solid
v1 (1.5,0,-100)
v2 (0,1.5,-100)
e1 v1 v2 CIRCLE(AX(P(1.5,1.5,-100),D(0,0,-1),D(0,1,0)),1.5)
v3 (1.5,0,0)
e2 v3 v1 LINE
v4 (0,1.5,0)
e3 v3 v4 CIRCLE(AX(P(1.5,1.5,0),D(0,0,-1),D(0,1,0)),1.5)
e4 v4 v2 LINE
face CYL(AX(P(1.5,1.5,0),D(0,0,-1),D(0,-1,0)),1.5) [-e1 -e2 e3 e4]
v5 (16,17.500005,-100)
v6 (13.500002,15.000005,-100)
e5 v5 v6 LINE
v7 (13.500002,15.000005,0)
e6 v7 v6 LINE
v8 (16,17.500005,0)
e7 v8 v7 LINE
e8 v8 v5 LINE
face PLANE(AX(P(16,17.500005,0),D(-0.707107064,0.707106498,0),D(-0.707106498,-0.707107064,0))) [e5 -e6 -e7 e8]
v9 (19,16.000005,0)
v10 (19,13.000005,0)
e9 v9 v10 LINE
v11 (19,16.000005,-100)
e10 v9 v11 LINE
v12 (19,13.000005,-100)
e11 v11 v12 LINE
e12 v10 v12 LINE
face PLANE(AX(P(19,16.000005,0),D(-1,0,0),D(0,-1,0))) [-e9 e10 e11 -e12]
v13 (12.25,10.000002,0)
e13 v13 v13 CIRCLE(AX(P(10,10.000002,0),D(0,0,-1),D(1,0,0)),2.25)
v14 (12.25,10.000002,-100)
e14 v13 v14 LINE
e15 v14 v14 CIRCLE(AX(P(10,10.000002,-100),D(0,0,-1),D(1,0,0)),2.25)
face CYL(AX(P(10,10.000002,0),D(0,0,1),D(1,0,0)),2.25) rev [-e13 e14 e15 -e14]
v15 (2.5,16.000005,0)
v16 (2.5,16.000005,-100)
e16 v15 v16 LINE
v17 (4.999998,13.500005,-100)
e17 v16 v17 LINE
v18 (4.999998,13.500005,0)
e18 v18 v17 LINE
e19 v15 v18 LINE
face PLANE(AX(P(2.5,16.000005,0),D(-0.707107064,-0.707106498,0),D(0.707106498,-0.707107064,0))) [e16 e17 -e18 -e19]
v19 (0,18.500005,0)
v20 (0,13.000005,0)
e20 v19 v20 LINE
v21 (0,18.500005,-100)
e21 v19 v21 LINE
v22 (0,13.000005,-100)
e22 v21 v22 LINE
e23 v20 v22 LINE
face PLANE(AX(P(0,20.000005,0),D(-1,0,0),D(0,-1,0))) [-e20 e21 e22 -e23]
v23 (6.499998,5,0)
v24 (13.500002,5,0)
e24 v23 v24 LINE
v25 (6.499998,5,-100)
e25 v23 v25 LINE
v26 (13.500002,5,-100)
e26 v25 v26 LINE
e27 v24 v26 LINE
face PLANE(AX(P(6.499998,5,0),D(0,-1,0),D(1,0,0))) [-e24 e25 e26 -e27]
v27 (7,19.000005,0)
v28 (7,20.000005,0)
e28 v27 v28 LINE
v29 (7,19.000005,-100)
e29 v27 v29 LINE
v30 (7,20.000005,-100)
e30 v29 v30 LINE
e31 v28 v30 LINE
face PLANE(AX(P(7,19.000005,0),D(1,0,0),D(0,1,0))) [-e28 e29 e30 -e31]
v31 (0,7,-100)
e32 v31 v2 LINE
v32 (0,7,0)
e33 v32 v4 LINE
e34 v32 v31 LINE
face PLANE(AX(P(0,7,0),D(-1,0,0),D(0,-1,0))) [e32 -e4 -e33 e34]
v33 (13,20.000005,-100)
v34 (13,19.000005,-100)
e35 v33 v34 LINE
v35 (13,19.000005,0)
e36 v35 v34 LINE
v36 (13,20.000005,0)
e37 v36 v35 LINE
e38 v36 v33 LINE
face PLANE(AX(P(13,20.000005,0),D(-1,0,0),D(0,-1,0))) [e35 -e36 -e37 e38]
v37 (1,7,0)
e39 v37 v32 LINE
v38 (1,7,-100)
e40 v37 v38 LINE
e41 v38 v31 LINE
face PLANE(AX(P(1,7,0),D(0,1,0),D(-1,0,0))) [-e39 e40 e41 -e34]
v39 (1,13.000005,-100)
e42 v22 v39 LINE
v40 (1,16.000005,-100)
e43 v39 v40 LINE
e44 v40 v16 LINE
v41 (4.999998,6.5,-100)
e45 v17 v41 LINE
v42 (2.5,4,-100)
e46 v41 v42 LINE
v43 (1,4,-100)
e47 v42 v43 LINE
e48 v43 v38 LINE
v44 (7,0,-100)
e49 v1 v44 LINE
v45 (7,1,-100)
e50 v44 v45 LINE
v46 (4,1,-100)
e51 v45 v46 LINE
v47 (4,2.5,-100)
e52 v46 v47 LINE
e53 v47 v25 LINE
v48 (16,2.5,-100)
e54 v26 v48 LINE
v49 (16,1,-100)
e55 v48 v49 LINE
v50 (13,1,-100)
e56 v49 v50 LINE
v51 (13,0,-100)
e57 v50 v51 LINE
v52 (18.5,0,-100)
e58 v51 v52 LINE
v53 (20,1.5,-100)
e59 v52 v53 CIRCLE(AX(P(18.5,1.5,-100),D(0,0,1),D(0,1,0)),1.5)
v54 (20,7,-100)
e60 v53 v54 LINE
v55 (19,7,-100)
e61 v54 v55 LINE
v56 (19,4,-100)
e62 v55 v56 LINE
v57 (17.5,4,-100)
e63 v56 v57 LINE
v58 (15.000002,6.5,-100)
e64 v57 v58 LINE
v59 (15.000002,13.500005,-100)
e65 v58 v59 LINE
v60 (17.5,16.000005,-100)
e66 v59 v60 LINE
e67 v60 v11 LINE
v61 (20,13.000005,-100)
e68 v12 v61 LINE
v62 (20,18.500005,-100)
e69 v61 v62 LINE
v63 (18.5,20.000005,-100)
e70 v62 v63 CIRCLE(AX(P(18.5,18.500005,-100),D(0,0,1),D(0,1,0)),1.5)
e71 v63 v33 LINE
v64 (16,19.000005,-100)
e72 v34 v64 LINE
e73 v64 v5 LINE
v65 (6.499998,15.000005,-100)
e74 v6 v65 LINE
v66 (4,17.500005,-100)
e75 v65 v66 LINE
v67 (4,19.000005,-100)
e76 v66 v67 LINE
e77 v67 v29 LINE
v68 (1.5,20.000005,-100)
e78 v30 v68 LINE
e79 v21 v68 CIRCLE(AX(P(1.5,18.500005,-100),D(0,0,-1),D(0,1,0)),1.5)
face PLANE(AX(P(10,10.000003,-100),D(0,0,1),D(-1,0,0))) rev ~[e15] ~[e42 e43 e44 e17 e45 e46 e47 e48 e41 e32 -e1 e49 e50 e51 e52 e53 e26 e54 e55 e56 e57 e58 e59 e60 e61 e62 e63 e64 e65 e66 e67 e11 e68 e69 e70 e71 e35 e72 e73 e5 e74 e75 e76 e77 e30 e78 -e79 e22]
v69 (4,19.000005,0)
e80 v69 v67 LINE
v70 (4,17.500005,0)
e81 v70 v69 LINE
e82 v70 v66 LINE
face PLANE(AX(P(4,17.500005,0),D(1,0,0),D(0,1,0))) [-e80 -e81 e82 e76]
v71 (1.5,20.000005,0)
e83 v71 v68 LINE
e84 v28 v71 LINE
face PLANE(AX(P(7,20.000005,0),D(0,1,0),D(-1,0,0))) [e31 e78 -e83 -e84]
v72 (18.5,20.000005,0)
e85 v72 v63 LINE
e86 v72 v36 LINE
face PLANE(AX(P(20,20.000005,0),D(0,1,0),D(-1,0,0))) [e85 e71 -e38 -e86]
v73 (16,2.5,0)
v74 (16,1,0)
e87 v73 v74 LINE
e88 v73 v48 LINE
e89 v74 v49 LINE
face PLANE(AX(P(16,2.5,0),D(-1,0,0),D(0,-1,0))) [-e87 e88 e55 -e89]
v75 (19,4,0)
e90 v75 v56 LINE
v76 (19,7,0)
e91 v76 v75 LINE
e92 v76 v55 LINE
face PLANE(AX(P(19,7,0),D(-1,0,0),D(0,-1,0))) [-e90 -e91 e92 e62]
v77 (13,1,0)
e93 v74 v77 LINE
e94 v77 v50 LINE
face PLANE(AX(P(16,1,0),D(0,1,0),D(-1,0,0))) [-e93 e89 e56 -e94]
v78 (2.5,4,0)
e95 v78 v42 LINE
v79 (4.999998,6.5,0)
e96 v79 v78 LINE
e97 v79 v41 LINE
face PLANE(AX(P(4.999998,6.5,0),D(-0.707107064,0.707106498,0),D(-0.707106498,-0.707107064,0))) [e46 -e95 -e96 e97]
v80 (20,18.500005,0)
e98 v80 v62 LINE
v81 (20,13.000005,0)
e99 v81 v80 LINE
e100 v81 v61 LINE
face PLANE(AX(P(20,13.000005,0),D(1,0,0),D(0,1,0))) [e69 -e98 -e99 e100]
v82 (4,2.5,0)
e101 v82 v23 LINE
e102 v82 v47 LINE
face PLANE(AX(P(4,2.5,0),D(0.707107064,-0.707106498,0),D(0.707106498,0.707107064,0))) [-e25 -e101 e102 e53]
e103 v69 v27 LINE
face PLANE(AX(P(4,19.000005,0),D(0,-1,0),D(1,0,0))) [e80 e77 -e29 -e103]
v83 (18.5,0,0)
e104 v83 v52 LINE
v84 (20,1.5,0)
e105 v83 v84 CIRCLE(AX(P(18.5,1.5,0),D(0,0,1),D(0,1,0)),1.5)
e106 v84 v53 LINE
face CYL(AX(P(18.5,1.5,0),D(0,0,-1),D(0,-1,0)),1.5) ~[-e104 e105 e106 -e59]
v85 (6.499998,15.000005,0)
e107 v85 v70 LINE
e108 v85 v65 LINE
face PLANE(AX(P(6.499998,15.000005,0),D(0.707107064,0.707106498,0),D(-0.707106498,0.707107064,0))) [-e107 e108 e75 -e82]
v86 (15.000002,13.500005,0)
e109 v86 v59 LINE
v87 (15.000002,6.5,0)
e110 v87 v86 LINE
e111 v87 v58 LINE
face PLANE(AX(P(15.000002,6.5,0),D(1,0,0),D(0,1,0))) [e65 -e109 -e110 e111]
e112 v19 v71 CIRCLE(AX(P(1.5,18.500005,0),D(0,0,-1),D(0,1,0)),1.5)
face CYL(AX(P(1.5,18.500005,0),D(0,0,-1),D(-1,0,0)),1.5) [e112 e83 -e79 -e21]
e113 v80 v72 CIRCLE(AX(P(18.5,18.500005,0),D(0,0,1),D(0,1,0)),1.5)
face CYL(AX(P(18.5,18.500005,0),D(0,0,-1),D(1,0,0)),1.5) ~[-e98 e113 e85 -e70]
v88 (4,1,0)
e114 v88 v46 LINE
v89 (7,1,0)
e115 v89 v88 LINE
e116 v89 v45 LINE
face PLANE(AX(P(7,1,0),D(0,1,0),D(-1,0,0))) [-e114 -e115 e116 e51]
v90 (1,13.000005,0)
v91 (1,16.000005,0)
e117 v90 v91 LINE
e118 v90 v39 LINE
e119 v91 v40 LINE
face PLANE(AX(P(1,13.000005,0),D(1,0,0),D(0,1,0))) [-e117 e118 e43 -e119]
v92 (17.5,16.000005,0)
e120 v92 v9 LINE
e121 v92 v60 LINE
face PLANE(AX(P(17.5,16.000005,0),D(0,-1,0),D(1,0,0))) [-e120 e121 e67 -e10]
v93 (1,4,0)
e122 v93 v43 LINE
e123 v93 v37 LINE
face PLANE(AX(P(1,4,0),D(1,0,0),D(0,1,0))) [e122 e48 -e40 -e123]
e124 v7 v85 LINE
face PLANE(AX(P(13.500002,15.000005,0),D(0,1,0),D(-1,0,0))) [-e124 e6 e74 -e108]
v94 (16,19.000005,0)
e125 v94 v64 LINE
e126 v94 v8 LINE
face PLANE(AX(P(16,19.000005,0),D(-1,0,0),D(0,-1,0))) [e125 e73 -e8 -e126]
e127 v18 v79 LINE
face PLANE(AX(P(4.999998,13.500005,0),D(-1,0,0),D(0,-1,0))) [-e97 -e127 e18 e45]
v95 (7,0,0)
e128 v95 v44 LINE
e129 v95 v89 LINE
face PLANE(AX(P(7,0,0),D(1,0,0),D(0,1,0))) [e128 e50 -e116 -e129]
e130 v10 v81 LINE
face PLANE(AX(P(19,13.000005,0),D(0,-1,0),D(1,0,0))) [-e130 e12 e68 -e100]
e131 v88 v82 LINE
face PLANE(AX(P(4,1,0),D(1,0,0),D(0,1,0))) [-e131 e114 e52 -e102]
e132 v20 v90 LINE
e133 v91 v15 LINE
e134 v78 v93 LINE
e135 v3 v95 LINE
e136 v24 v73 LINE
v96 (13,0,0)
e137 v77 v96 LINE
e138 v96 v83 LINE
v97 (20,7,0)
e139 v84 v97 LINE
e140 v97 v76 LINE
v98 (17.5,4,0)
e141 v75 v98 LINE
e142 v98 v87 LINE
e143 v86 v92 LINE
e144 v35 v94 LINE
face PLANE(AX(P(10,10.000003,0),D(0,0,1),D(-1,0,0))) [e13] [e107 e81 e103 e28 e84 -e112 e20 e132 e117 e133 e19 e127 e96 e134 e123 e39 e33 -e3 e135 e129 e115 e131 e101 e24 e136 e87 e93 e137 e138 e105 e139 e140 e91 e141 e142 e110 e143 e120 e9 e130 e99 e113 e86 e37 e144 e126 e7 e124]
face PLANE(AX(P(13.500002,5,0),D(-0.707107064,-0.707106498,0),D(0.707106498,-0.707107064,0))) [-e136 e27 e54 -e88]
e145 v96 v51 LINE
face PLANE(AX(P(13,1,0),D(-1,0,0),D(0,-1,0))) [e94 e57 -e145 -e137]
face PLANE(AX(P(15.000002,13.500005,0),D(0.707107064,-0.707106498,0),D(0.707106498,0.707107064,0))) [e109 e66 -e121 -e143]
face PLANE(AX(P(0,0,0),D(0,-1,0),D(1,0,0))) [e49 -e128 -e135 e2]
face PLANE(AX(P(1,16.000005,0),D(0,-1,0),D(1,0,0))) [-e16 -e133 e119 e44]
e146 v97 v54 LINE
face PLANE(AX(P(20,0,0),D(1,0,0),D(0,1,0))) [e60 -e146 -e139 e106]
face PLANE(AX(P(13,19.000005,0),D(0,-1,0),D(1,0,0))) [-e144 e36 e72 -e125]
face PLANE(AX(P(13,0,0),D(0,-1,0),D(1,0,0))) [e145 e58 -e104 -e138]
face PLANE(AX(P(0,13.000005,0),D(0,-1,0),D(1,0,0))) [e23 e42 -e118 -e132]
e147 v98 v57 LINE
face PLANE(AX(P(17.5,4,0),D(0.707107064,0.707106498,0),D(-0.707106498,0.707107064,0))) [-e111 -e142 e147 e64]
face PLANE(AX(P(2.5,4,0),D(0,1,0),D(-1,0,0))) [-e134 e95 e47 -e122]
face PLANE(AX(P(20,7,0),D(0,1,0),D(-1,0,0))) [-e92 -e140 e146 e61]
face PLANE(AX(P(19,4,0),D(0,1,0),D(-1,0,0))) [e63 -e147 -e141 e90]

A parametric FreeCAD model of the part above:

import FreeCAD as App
import Part
import Sketcher
from FreeCAD import Vector


def edges_at(feature, points):
    """Names of the edges that pass closest to the given points."""
    edges = feature.Shape.Edges
    near = lambda p: min(range(len(edges)), key=lambda i: edges[i].distToShape(Part.Vertex(*p))[0])
    return sorted({f"Edge{near(p) + 1}" for p in points})


def add_polygon(sketch, points):
    """Adds a closed chain of lines whose ends are joined by coincident constraints."""
    first, n = sketch.GeometryCount, len(points)
    for a, b in zip(points, points[1:] + points[:1]):
        sketch.addGeometry(Part.LineSegment(App.Vector(*a, 0), App.Vector(*b, 0)), False)
    for i in range(n):
        sketch.addConstraint(Sketcher.Constraint("Coincident", first + i, 2, first + (i + 1) % n, 1))

doc = App.newDocument("Part")
body = doc.addObject("PartDesign::Body", "Body")

# Sketch on XY plane
sketch1 = body.newObject("Sketcher::SketchObject", "Sketch")
sketch1.AttachmentSupport = (doc.getObject("XY_Plane"), [""])
sketch1.MapMode = "FlatFace"
add_polygon(sketch1, [(7, 1), (7, 0), (0, 0), (0, 7), (1, 7), (1, 4), (2.5, 4), (5, 6.5), (5, 13.5), (2.5, 16), (1, 16), (1, 13), (0, 13), (0, 20), (7, 20), (7, 19), (4, 19), (4, 17.5), (6.5, 15), (13.5, 15), (16, 17.5), (16, 19), (13, 19), (13, 20), (20, 20), (20, 13), (19, 13), (19, 16), (17.5, 16), (15, 13.5), (15, 6.5), (17.5, 4), (19, 4), (19, 7), (20, 7), (20, 0), (13, 0), (13, 1), (16, 1), (16, 2.5), (13.5, 5), (6.5, 5), (4, 2.5), (4, 1)])  # lines 0-43
sketch1.addGeometry(Part.Circle(Vector(10, 10, 0), Vector(0, 0, 1), 2.2), False)  # 44
sketch1.addConstraint([
    Sketcher.Constraint("Vertical", 0),
    Sketcher.Constraint("Horizontal", 1),
    Sketcher.Constraint("Vertical", 2),
    Sketcher.Constraint("Horizontal", 3),
    Sketcher.Constraint("Vertical", 4),
    Sketcher.Constraint("Horizontal", 5),
    Sketcher.Constraint("Vertical", 7),
    Sketcher.Constraint("Horizontal", 9),
    Sketcher.Constraint("Vertical", 10),
    Sketcher.Constraint("Horizontal", 11),
    Sketcher.Constraint("Vertical", 12),
    Sketcher.Constraint("Horizontal", 13),
    Sketcher.Constraint("Vertical", 14),
    Sketcher.Constraint("Horizontal", 15),
    Sketcher.Constraint("Vertical", 16),
    Sketcher.Constraint("Horizontal", 18),
    Sketcher.Constraint("Vertical", 20),
    Sketcher.Constraint("Horizontal", 21),
    Sketcher.Constraint("Vertical", 22),
    Sketcher.Constraint("Horizontal", 23),
    Sketcher.Constraint("Vertical", 24),
    Sketcher.Constraint("Horizontal", 25),
    Sketcher.Constraint("Vertical", 26),
    Sketcher.Constraint("Horizontal", 27),
    Sketcher.Constraint("Vertical", 29),
    Sketcher.Constraint("Horizontal", 31),
    Sketcher.Constraint("Vertical", 32),
    Sketcher.Constraint("Horizontal", 33),
    Sketcher.Constraint("Vertical", 34),
    Sketcher.Constraint("Horizontal", 35),
    Sketcher.Constraint("Vertical", 36),
    Sketcher.Constraint("Horizontal", 37),
    Sketcher.Constraint("Vertical", 38),
    Sketcher.Constraint("Horizontal", 40),
    Sketcher.Constraint("Vertical", 42),
    Sketcher.Constraint("Horizontal", 43),
    Sketcher.Constraint("Coincident", 1, 2, -1, 1),
    Sketcher.Constraint("PointOnObject", 11, 2, -2),
    Sketcher.Constraint("PointOnObject", 34, 2, -1),
    Sketcher.Constraint("Perpendicular", 6, 8),
    Sketcher.Constraint("Parallel", 8, 17),
    Sketcher.Constraint("Perpendicular", 17, 19),
    Sketcher.Constraint("Parallel", 19, 28),
    Sketcher.Constraint("Perpendicular", 28, 30),
    Sketcher.Constraint("Parallel", 30, 39),
    Sketcher.Constraint("Perpendicular", 39, 41),
    Sketcher.Constraint("Horizontal", 16, 2, 19, 2),
    Sketcher.Constraint("Horizontal", 15, 2, 20, 2),
    Sketcher.Constraint("Horizontal", 13, 2, 22, 2),
    Sketcher.Constraint("Horizontal", 11, 2, 24, 2),
    Sketcher.Constraint("Horizontal", 9, 2, 26, 2),
    Sketcher.Constraint("Horizontal", 7, 2, 28, 2),
    Sketcher.Constraint("Horizontal", 6, 2, 29, 2),
    Sketcher.Constraint("Horizontal", 5, 2, 30, 2),
    Sketcher.Constraint("Horizontal", 3, 2, 32, 2),
    Sketcher.Constraint("Horizontal", 38, 2, 41, 2),
    Sketcher.Constraint("Horizontal", 37, 2, 42, 2),
    Sketcher.Constraint("Vertical", 5, 2, 8, 2),
    Sketcher.Constraint("Vertical", 4, 2, 9, 2),
    Sketcher.Constraint("Vertical", 0, 2, 13, 2),
    Sketcher.Constraint("Vertical", 27, 2, 30, 2),
    Sketcher.Constraint("Vertical", 26, 2, 31, 2),
    Sketcher.Constraint("Vertical", 24, 2, 33, 2),
    Sketcher.Constraint("Vertical", 22, 2, 35, 2),
    Sketcher.Constraint("Vertical", 20, 2, 37, 2),
    Sketcher.Constraint("Vertical", 18, 2, 39, 2),
    Sketcher.Constraint("Vertical", 17, 2, 40, 2),
    Sketcher.Constraint("Equal", 15, 21),
    Sketcher.Constraint("Equal", 13, 23),
    Sketcher.Constraint("Equal", 11, 25),
    Sketcher.Constraint("Equal", 9, 27),
    Sketcher.Constraint("Equal", 33, 0),
    Sketcher.Constraint("Equal", 35, 2),
    Sketcher.Constraint("Equal", 43, 4),
    Sketcher.Constraint("Equal", 40, 7),
    Sketcher.Constraint("Equal", 4, 10),
    Sketcher.Constraint("Equal", 2, 12),
    Sketcher.Constraint("Equal", 0, 14),
    Sketcher.Constraint("Equal", 31, 16),
    Sketcher.Constraint("Equal", 20, 38),
    Sketcher.Constraint("Equal", 8, 17),
    Sketcher.Constraint("Diameter", 44, 4.5),
    Sketcher.Constraint("DistanceX", 1, 2, 1, 1, 7.0),
    Sketcher.Constraint("DistanceX", 3, 1, 3, 2, 1.0),
    Sketcher.Constraint("DistanceX", 15, 2, 15, 1, 3.0),
    Sketcher.Constraint("DistanceX", 5, 1, 5, 2, 1.5),
    Sketcher.Constraint("DistanceX", -1, 1, 44, 3, 10.0),
    Sketcher.Constraint("DistanceX", -1, 1, 19, 2, 16.0),
    Sketcher.Constraint("DistanceY", -1, 1, 39, 2, 5.0),
    Sketcher.Constraint("DistanceY", -1, 1, 44, 3, 10.000002),
])
pad1 = body.newObject("PartDesign::Pad", "Pad")
pad1.Profile = sketch1
pad1.Length = 100
pad1.Reversed = True
doc.recompute()

fillet = body.newObject("PartDesign::Fillet", "Fillet")
fillet.Base = (pad1, edges_at(pad1, [
    (20, 20, -50),
    (20, 0, -50),
    (0, 20, -50),
    (0, 0, -50),
]))
fillet.Radius = 1.5

doc.recompute()
